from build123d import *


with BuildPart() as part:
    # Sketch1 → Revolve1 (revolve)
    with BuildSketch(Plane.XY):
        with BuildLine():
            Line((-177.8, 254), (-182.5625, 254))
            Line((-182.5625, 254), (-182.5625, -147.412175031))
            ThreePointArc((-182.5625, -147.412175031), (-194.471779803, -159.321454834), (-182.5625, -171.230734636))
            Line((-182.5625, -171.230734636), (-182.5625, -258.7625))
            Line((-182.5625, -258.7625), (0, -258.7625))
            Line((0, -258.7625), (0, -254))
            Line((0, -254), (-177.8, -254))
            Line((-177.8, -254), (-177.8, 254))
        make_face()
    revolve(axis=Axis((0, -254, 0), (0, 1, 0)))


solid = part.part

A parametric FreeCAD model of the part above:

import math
import FreeCAD as App
import Part
import Sketcher
from FreeCAD import Vector
Q = App.Units.Quantity

doc = App.newDocument("Part")
body = doc.addObject("PartDesign::Body", "Body")

# Sketch on XY plane
sketch1 = body.newObject("Sketcher::SketchObject", "Sketch")
sketch1.AttachmentSupport = (doc.getObject("XY_Plane"), [""])
sketch1.MapMode = "FlatFace"
sketch1.addGeometry([
    Part.LineSegment(Vector(-177.8, 254, 0), Vector(-182.5625, 254, 0)),  # 0
    Part.LineSegment(Vector(-182.5625, 254, 0), Vector(-182.5625, -147.412175, 0)),  # 1
    Part.ArcOfCircle(Part.Circle(Vector(-182.5625, -159.321455, 0), Vector(0, 0, 1), 11.90928), math.radians(90), math.radians(270)),  # 2
    Part.LineSegment(Vector(-182.5625, -171.230735, 0), Vector(-182.5625, -258.7625, 0)),  # 3
    Part.LineSegment(Vector(-182.5625, -258.7625, 0), Vector(0, -258.7625, 0)),  # 4
    Part.LineSegment(Vector(0, -258.7625, 0), Vector(0, -254, 0)),  # 5
    Part.LineSegment(Vector(0, -254, 0), Vector(-177.8, -254, 0)),  # 6
    Part.LineSegment(Vector(-177.8, -254, 0), Vector(-177.8, 254, 0)),  # 7
], False)
sketch1.addConstraint([
    Sketcher.Constraint("Coincident", 0, 2, 1, 1),
    Sketcher.Constraint("Coincident", 1, 2, 2, 1),
    Sketcher.Constraint("Coincident", 2, 2, 3, 1),
    Sketcher.Constraint("Coincident", 3, 2, 4, 1),
    Sketcher.Constraint("Coincident", 4, 2, 5, 1),
    Sketcher.Constraint("Coincident", 5, 2, 6, 1),
    Sketcher.Constraint("Coincident", 6, 2, 7, 1),
    Sketcher.Constraint("Coincident", 7, 2, 0, 1),
    Sketcher.Constraint("Horizontal", 0),
    Sketcher.Constraint("Vertical", 1),
    Sketcher.Constraint("Vertical", 3),
    Sketcher.Constraint("Horizontal", 4),
    Sketcher.Constraint("Vertical", 5),
    Sketcher.Constraint("Horizontal", 6),
    Sketcher.Constraint("Vertical", 7),
    Sketcher.Constraint("PointOnObject", 4, 2, -2),
    Sketcher.Constraint("Vertical", 2, 3, 0, 2),
    Sketcher.Constraint("Vertical", 1, 2, 2, 2),
    Sketcher.Constraint("Equal", 0, 5),
    Sketcher.Constraint("DistanceX", 6, 2, 6, 1, Q("7 in")),
    Sketcher.Constraint("DistanceY", 7, 1, 7, 2, Q("20 in")),
    Sketcher.Constraint("DistanceY", -1, 1, 0, 2, Q("10 in")),
    Sketcher.Constraint("DistanceX", 0, 2, 0, 1, Q("0.1875 in")),
    Sketcher.Constraint("Radius", 2, Q("11.90928 mm")),
    Sketcher.Constraint("DistanceY", 1, 2, 1, 1, Q("401.412175 mm")),
])
revolution = body.newObject("PartDesign::Revolution", "Revolution")
revolution.Profile = sketch1
revolution.ReferenceAxis = (sketch1, ["V_Axis"])
revolution.Angle = 360

doc.recompute()
